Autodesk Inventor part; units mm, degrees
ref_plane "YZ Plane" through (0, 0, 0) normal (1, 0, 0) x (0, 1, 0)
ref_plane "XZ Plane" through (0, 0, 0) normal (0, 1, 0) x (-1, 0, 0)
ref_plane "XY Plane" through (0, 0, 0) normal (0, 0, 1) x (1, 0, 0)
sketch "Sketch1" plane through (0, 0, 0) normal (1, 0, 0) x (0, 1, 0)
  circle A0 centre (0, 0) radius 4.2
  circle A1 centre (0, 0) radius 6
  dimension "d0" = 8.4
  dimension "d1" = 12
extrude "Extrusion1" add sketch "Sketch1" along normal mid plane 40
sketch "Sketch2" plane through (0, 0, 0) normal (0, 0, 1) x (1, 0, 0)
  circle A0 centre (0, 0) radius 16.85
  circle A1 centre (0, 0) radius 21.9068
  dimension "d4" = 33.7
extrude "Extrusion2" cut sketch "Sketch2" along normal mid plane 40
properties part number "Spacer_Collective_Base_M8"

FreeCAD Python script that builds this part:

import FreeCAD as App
import Part
import Sketcher
Q = App.Units.Quantity

doc = App.newDocument("Part")
body = doc.addObject("PartDesign::Body", "Body")

sketch1 = body.newObject("Sketcher::SketchObject", "Sketch")
sketch1.AttachmentSupport = (doc.getObject("YZ_Plane"), [""])
sketch1.MapMode = "FlatFace"
sketch1.addGeometry(Part.Circle(App.Vector(0, 0, 0), App.Vector(0, 0, 1), 6), False)
sketch1.addGeometry(Part.Circle(App.Vector(0, 0, 0), App.Vector(0, 0, 1), 4.2), False)
sketch1.addConstraint(Sketcher.Constraint("Coincident", 0, 3, -1, 1))
sketch1.addConstraint(Sketcher.Constraint("Coincident", 1, 3, -1, 1))
sketch1.addConstraint(Sketcher.Constraint("Diameter", 0, Q("12 mm")))
sketch1.addConstraint(Sketcher.Constraint("Diameter", 1, Q("8.4 mm")))
pad1 = body.newObject("PartDesign::Pad", "Pad")
pad1.Profile = sketch1
pad1.Length = 40
pad1.Midplane = True

sketch2 = body.newObject("Sketcher::SketchObject", "Sketch001")
sketch2.AttachmentSupport = (doc.getObject("XY_Plane"), [""])
sketch2.MapMode = "FlatFace"
sketch2.addGeometry(Part.Circle(App.Vector(0, 0, 0), App.Vector(0, 0, 1), 21.9068), False)
sketch2.addGeometry(Part.Circle(App.Vector(0, 0, 0), App.Vector(0, 0, 1), 16.85), False)
sketch2.addConstraint(Sketcher.Constraint("Coincident", 0, 3, -1, 1))
sketch2.addConstraint(Sketcher.Constraint("Coincident", 1, 3, -1, 1))
sketch2.addConstraint(Sketcher.Constraint("Diameter", 1, Q("33.7 mm")))
sketch2.addConstraint(Sketcher.Constraint("Diameter", 0, Q("43.8136 mm")))
pocket1 = body.newObject("PartDesign::Pocket", "Pocket")
pocket1.Profile = sketch2
pocket1.Length = 40
pocket1.Midplane = True

doc.recompute()
